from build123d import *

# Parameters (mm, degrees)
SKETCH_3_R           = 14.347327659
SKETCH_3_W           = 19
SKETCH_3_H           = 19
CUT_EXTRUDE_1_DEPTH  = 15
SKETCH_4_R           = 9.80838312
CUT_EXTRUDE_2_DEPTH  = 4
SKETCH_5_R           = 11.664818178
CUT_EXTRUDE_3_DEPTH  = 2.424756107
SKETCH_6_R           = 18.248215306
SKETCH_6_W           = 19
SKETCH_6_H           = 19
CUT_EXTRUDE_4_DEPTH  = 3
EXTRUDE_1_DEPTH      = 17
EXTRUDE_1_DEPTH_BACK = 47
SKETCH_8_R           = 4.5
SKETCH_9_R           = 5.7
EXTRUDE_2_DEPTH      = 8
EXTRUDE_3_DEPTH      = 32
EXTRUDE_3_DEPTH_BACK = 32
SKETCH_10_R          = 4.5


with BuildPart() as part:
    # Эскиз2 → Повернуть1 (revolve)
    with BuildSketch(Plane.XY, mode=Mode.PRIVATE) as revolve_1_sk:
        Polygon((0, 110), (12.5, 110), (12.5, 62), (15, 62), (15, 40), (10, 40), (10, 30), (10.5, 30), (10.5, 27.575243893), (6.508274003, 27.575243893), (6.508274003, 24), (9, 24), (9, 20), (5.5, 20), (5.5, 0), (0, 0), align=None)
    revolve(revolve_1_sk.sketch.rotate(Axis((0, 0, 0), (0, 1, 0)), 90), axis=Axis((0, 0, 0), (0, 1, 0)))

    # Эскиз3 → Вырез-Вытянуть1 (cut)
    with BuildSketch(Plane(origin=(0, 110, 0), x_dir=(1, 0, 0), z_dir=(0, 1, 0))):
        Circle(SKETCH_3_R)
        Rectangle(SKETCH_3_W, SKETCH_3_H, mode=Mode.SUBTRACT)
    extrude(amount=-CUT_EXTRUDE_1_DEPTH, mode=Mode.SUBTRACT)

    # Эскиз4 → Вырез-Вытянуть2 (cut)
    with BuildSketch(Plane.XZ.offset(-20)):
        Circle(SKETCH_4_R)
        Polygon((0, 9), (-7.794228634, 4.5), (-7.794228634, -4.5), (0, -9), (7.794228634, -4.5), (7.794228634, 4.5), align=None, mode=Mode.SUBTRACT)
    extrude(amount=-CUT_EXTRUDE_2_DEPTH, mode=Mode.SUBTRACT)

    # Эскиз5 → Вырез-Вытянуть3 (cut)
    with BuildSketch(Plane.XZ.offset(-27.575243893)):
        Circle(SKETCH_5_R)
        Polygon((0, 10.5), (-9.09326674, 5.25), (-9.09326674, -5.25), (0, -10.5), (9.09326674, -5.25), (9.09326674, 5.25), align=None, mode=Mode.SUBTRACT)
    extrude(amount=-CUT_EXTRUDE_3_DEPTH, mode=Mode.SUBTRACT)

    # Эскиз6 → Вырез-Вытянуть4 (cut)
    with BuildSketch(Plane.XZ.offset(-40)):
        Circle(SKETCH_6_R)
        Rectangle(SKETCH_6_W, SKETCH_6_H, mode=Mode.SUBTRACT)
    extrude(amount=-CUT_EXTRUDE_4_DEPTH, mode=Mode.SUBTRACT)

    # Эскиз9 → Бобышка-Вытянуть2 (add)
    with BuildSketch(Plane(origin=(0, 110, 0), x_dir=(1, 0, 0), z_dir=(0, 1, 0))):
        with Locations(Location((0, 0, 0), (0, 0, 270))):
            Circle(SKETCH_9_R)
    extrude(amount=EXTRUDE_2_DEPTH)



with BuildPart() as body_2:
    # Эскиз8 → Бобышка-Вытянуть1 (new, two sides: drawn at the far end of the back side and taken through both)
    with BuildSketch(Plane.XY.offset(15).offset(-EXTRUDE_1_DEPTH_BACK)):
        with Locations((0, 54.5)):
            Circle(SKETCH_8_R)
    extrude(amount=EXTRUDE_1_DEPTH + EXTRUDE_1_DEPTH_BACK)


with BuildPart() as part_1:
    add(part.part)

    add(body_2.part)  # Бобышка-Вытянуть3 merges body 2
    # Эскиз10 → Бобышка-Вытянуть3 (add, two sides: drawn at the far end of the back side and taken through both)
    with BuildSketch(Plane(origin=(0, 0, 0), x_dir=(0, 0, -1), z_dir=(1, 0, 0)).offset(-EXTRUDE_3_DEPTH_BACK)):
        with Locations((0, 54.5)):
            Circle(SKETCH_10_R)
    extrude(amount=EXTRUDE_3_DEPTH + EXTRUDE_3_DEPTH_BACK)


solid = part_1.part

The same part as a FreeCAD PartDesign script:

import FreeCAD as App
import Part
import Sketcher

V = App.Vector
Q = App.Units.Quantity

doc = App.newDocument("Part")
params = doc.addObject("Spreadsheet::Sheet", "Params")
for row, (alias, value) in enumerate([
    ("sketch1_width", "5 mm"),
    ("sketch1_height", "110 mm"),
    ("sketch1_height2", "20 mm"),
    ("sketch1_height3", "4 mm"),
    ("sketch1_height4", "10 mm"),
    ("revolution_angle", "360 deg"),
    ("sketch2_width", "19 mm"),
    ("pocket1_length", "15 mm"),
    ("sketch3_height", "9 mm"),
    ("sketch3_length", "9 mm"),
    ("pocket2_length", "4 mm"),
    ("sketch4_height", "10.5 mm"),
    ("pocket3_length", "2.424756 mm"),
    ("sketch5_width", "19 mm"),
    ("pocket4_length", "3 mm"),
    ("sketch6_diameter", "11.4 mm"),
    ("pad1_length", "8 mm"),
    ("sketch7_diameter", "9 mm"),
    ("pad2_length", "17 mm"),
    ("pad2_length2", "47 mm"),
    ("sketch8_diameter", "9 mm"),
    ("pad3_length", "32 mm"),
    ("pad3_length2", "32 mm"),
], start=1):
    params.set(f"A{row}", alias)
    params.set(f"B{row}", "=" + value)
    params.setAlias(f"B{row}", alias)

body = doc.addObject("PartDesign::Body", "Body")

sketch1 = doc.addObject("Sketcher::SketchObject", "Sketch")
body.addObject(sketch1)
sketch1.AttachmentSupport = (doc.XY_Plane, [""])
sketch1.MapMode = "FlatFace"
sketch1.addGeometry([
    Part.LineSegment(V(12.5, 110, 0), V(0, 110, 0)),
    Part.LineSegment(V(0, 110, 0), V(0, 0, 0)),
    Part.LineSegment(V(0, 0, 0), V(5.5, 0, 0)),
    Part.LineSegment(V(5.5, 0, 0), V(5.5, 20, 0)),
    Part.LineSegment(V(5.5, 20, 0), V(9, 20, 0)),
    Part.LineSegment(V(9, 20, 0), V(9, 24, 0)),
    Part.LineSegment(V(9, 24, 0), V(6.508274, 24, 0)),
    Part.LineSegment(V(6.508274, 24, 0), V(6.508274, 27.575244, 0)),
    Part.LineSegment(V(6.508274, 27.575244, 0), V(10.5, 27.575244, 0)),
    Part.LineSegment(V(10.5, 27.575244, 0), V(10.5, 30, 0)),
    Part.LineSegment(V(10.5, 30, 0), V(10, 30, 0)),
    Part.LineSegment(V(10, 30, 0), V(10, 40, 0)),
    Part.LineSegment(V(10, 40, 0), V(15, 40, 0)),
    Part.LineSegment(V(15, 40, 0), V(15, 62, 0)),
    Part.LineSegment(V(15, 62, 0), V(12.5, 62, 0)),
    Part.LineSegment(V(12.5, 62, 0), V(12.5, 110, 0)),
], False)
sketch1.addConstraint([
    Sketcher.Constraint("Coincident", 0, 2, 1, 1),
    Sketcher.Constraint("Coincident", 1, 2, 2, 1),
    Sketcher.Constraint("Coincident", 2, 2, 3, 1),
    Sketcher.Constraint("Coincident", 3, 2, 4, 1),
    Sketcher.Constraint("Coincident", 4, 2, 5, 1),
    Sketcher.Constraint("Coincident", 5, 2, 6, 1),
    Sketcher.Constraint("Coincident", 6, 2, 7, 1),
    Sketcher.Constraint("Coincident", 7, 2, 8, 1),
    Sketcher.Constraint("Coincident", 8, 2, 9, 1),
    Sketcher.Constraint("Coincident", 9, 2, 10, 1),
    Sketcher.Constraint("Coincident", 10, 2, 11, 1),
    Sketcher.Constraint("Coincident", 11, 2, 12, 1),
    Sketcher.Constraint("Coincident", 12, 2, 13, 1),
    Sketcher.Constraint("Coincident", 13, 2, 14, 1),
    Sketcher.Constraint("Coincident", 14, 2, 15, 1),
    Sketcher.Constraint("Coincident", 15, 2, 0, 1),
    Sketcher.Constraint("Horizontal", 0),
    Sketcher.Constraint("Vertical", 1),
    Sketcher.Constraint("Horizontal", 2),
    Sketcher.Constraint("Vertical", 3),
    Sketcher.Constraint("Horizontal", 4),
    Sketcher.Constraint("Vertical", 5),
    Sketcher.Constraint("Horizontal", 6),
    Sketcher.Constraint("Vertical", 7),
    Sketcher.Constraint("Horizontal", 8),
    Sketcher.Constraint("Vertical", 9),
    Sketcher.Constraint("Horizontal", 10),
    Sketcher.Constraint("Vertical", 11),
    Sketcher.Constraint("Horizontal", 12),
    Sketcher.Constraint("Vertical", 13),
    Sketcher.Constraint("Horizontal", 14),
    Sketcher.Constraint("Vertical", 15),
    Sketcher.Constraint("Coincident", 1, 2, -1, 1),
    Sketcher.Constraint("DistanceX", 12, 1, 12, 2, Q("5 mm")),
    Sketcher.Constraint("DistanceY", 1, 2, 1, 1, Q("110 mm")),
    Sketcher.Constraint("DistanceY", 3, 1, 3, 2, Q("20 mm")),
    Sketcher.Constraint("DistanceY", 5, 1, 5, 2, Q("4 mm")),
    Sketcher.Constraint("DistanceY", 11, 1, 11, 2, Q("10 mm")),
    Sketcher.Constraint("DistanceY", 13, 1, 13, 2, Q("22 mm")),
    Sketcher.Constraint("DistanceY", 15, 1, 15, 2, Q("48 mm")),
    Sketcher.Constraint("DistanceX", 0, 2, 0, 1, Q("12.5 mm")),
    Sketcher.Constraint("DistanceX", 2, 1, 2, 2, Q("5.5 mm")),
    Sketcher.Constraint("DistanceX", 4, 1, 4, 2, Q("3.5 mm")),
    Sketcher.Constraint("DistanceX", 10, 2, 10, 1, Q("0.5 mm")),
    Sketcher.Constraint("DistanceX", 14, 2, 14, 1, Q("2.5 mm")),
    Sketcher.Constraint("DistanceX", 6, 2, 6, 1, Q("2.491726 mm")),
    Sketcher.Constraint("DistanceY", 7, 1, 7, 2, Q("3.575244 mm")),
])
sketch1.setExpression("Constraints[33]", "Params.sketch1_width")
sketch1.setExpression("Constraints[34]", "Params.sketch1_height")
sketch1.setExpression("Constraints[35]", "Params.sketch1_height2")
sketch1.setExpression("Constraints[36]", "Params.sketch1_height3")
sketch1.setExpression("Constraints[37]", "Params.sketch1_height4")
revolution = doc.addObject("PartDesign::Revolution", "Revolution")
body.addObject(revolution)
revolution.Profile = sketch1
revolution.ReferenceAxis = (sketch1, ["V_Axis"])
revolution.setExpression("Angle", "Params.revolution_angle")

sketch2 = doc.addObject("Sketcher::SketchObject", "Sketch001")
body.addObject(sketch2)
sketch2.AttachmentSupport = (doc.XZ_Plane, [""])
sketch2.MapMode = "FlatFace"
sketch2.AttachmentOffset = App.Placement(V(0, 0, -110), App.Rotation())
sketch2.addGeometry([
    Part.Circle(V(0, 0, 0), V(0, 0, 1), 14.347328),
    Part.LineSegment(V(9.5, 9.5, 0), V(-9.5, 9.5, 0)),
    Part.LineSegment(V(-9.5, 9.5, 0), V(-9.5, -9.5, 0)),
    Part.LineSegment(V(-9.5, -9.5, 0), V(9.5, -9.5, 0)),
    Part.LineSegment(V(9.5, -9.5, 0), V(9.5, 9.5, 0)),
], False)
sketch2.addConstraint([
    Sketcher.Constraint("Coincident", 1, 2, 2, 1),
    Sketcher.Constraint("Coincident", 2, 2, 3, 1),
    Sketcher.Constraint("Coincident", 3, 2, 4, 1),
    Sketcher.Constraint("Coincident", 4, 2, 1, 1),
    Sketcher.Constraint("Horizontal", 1),
    Sketcher.Constraint("Vertical", 2),
    Sketcher.Constraint("Horizontal", 3),
    Sketcher.Constraint("Vertical", 4),
    Sketcher.Constraint("Coincident", 0, 3, -1, 1),
    Sketcher.Constraint("Symmetric", 1, 2, 3, 2, -1, 1),
    Sketcher.Constraint("Equal", 3, 2),
    Sketcher.Constraint("DistanceX", 1, 2, 1, 1, Q("19 mm")),
    Sketcher.Constraint("Diameter", 0, Q("28.694655 mm")),
])
sketch2.setExpression("Constraints[11]", "Params.sketch2_width")
pocket1 = doc.addObject("PartDesign::Pocket", "Pocket")
body.addObject(pocket1)
pocket1.Profile = sketch2
pocket1.setExpression("Length", "Params.pocket1_length")
pocket1.Reversed = True

sketch3 = doc.addObject("Sketcher::SketchObject", "Sketch002")
body.addObject(sketch3)
sketch3.AttachmentSupport = (doc.XZ_Plane, [""])
sketch3.MapMode = "FlatFace"
sketch3.AttachmentOffset = App.Placement(V(0, 0, -20), App.Rotation())
sketch3.addGeometry([
    Part.Circle(V(0, 0, 0), V(0, 0, 1), 9.808383),
    Part.LineSegment(V(-7.794229, 4.5, 0), V(0, 9, 0)),
    Part.LineSegment(V(0, 9, 0), V(7.794229, 4.5, 0)),
    Part.LineSegment(V(7.794229, 4.5, 0), V(7.794229, -4.5, 0)),
    Part.LineSegment(V(7.794229, -4.5, 0), V(0, -9, 0)),
    Part.LineSegment(V(0, -9, 0), V(-7.794229, -4.5, 0)),
    Part.LineSegment(V(-7.794229, -4.5, 0), V(-7.794229, 4.5, 0)),
], False)
sketch3.addConstraint([
    Sketcher.Constraint("Coincident", 1, 2, 2, 1),
    Sketcher.Constraint("Coincident", 2, 2, 3, 1),
    Sketcher.Constraint("Coincident", 3, 2, 4, 1),
    Sketcher.Constraint("Coincident", 4, 2, 5, 1),
    Sketcher.Constraint("Coincident", 5, 2, 6, 1),
    Sketcher.Constraint("Coincident", 6, 2, 1, 1),
    Sketcher.Constraint("Vertical", 3),
    Sketcher.Constraint("Vertical", 6),
    Sketcher.Constraint("Coincident", 0, 3, -1, 1),
    Sketcher.Constraint("Symmetric", 1, 2, 4, 2, -1, 1),
    Sketcher.Constraint("Symmetric", 2, 2, 5, 2, -1, 1),
    Sketcher.Constraint("PointOnObject", 1, 2, -2),
    Sketcher.Constraint("Parallel", 1, 4),
    Sketcher.Constraint("Horizontal", 3, 2, 5, 2),
    Sketcher.Constraint("DistanceY", 3, 2, 3, 1, Q("9 mm")),
    Sketcher.Constraint("Angle", 1, Q("30 deg")),
    Sketcher.Constraint("Distance", 1, Q("9 mm")),
    Sketcher.Constraint("Diameter", 0, Q("19.616766 mm")),
])
sketch3.setExpression("Constraints[14]", "Params.sketch3_height")
sketch3.setExpression("Constraints[16]", "Params.sketch3_length")
pocket2 = doc.addObject("PartDesign::Pocket", "Pocket001")
body.addObject(pocket2)
pocket2.Profile = sketch3
pocket2.setExpression("Length", "Params.pocket2_length")

sketch4 = doc.addObject("Sketcher::SketchObject", "Sketch003")
body.addObject(sketch4)
sketch4.AttachmentSupport = (doc.XZ_Plane, [""])
sketch4.MapMode = "FlatFace"
sketch4.AttachmentOffset = App.Placement(V(0, 0, -27.575244), App.Rotation())
sketch4.addGeometry([
    Part.Circle(V(0, 0, 0), V(0, 0, 1), 11.664818),
    Part.LineSegment(V(-9.093267, 5.25, 0), V(0, 10.5, 0)),
    Part.LineSegment(V(0, 10.5, 0), V(9.093267, 5.25, 0)),
    Part.LineSegment(V(9.093267, 5.25, 0), V(9.093267, -5.25, 0)),
    Part.LineSegment(V(9.093267, -5.25, 0), V(0, -10.5, 0)),
    Part.LineSegment(V(0, -10.5, 0), V(-9.093267, -5.25, 0)),
    Part.LineSegment(V(-9.093267, -5.25, 0), V(-9.093267, 5.25, 0)),
], False)
sketch4.addConstraint([
    Sketcher.Constraint("Coincident", 1, 2, 2, 1),
    Sketcher.Constraint("Coincident", 2, 2, 3, 1),
    Sketcher.Constraint("Coincident", 3, 2, 4, 1),
    Sketcher.Constraint("Coincident", 4, 2, 5, 1),
    Sketcher.Constraint("Coincident", 5, 2, 6, 1),
    Sketcher.Constraint("Coincident", 6, 2, 1, 1),
    Sketcher.Constraint("Vertical", 3),
    Sketcher.Constraint("Vertical", 6),
    Sketcher.Constraint("Coincident", 0, 3, -1, 1),
    Sketcher.Constraint("Symmetric", 1, 2, 4, 2, -1, 1),
    Sketcher.Constraint("Symmetric", 2, 2, 5, 2, -1, 1),
    Sketcher.Constraint("PointOnObject", 1, 2, -2),
    Sketcher.Constraint("Parallel", 1, 4),
    Sketcher.Constraint("Horizontal", 3, 2, 5, 2),
    Sketcher.Constraint("Angle", 1, Q("30 deg")),
    Sketcher.Constraint("DistanceY", 3, 2, 3, 1, Q("10.5 mm")),
    Sketcher.Constraint("DistanceY", 4, 2, 1, 2, Q("21 mm")),
    Sketcher.Constraint("Diameter", 0, Q("23.329636 mm")),
])
sketch4.setExpression("Constraints[15]", "Params.sketch4_height")
pocket3 = doc.addObject("PartDesign::Pocket", "Pocket002")
body.addObject(pocket3)
pocket3.Profile = sketch4
pocket3.setExpression("Length", "Params.pocket3_length")

sketch5 = doc.addObject("Sketcher::SketchObject", "Sketch004")
body.addObject(sketch5)
sketch5.AttachmentSupport = (doc.XZ_Plane, [""])
sketch5.MapMode = "FlatFace"
sketch5.AttachmentOffset = App.Placement(V(0, 0, -40), App.Rotation())
sketch5.addGeometry([
    Part.Circle(V(0, 0, 0), V(0, 0, 1), 18.248215),
    Part.LineSegment(V(9.5, -9.5, 0), V(-9.5, -9.5, 0)),
    Part.LineSegment(V(-9.5, -9.5, 0), V(-9.5, 9.5, 0)),
    Part.LineSegment(V(-9.5, 9.5, 0), V(9.5, 9.5, 0)),
    Part.LineSegment(V(9.5, 9.5, 0), V(9.5, -9.5, 0)),
], False)
sketch5.addConstraint([
    Sketcher.Constraint("Coincident", 1, 2, 2, 1),
    Sketcher.Constraint("Coincident", 2, 2, 3, 1),
    Sketcher.Constraint("Coincident", 3, 2, 4, 1),
    Sketcher.Constraint("Coincident", 4, 2, 1, 1),
    Sketcher.Constraint("Horizontal", 1),
    Sketcher.Constraint("Vertical", 2),
    Sketcher.Constraint("Horizontal", 3),
    Sketcher.Constraint("Vertical", 4),
    Sketcher.Constraint("Coincident", 0, 3, -1, 1),
    Sketcher.Constraint("Symmetric", 1, 2, 3, 2, -1, 1),
    Sketcher.Constraint("Equal", 3, 2),
    Sketcher.Constraint("DistanceX", 1, 2, 1, 1, Q("19 mm")),
    Sketcher.Constraint("Diameter", 0, Q("36.496431 mm")),
])
sketch5.setExpression("Constraints[11]", "Params.sketch5_width")
pocket4 = doc.addObject("PartDesign::Pocket", "Pocket003")
body.addObject(pocket4)
pocket4.Profile = sketch5
pocket4.setExpression("Length", "Params.pocket4_length")

sketch6 = doc.addObject("Sketcher::SketchObject", "Sketch005")
body.addObject(sketch6)
sketch6.AttachmentSupport = (doc.XZ_Plane, [""])
sketch6.MapMode = "FlatFace"
sketch6.AttachmentOffset = App.Placement(V(0, 0, -110), App.Rotation())
sketch6.addGeometry(Part.Circle(V(0, 0, 0), V(0, 0, 1), 5.7), False)
sketch6.addConstraint([
    Sketcher.Constraint("Coincident", 0, 3, -1, 1),
    Sketcher.Constraint("Diameter", 0, Q("11.4 mm")),
])
sketch6.setExpression("Constraints[1]", "Params.sketch6_diameter")
pad1 = doc.addObject("PartDesign::Pad", "Pad")
body.addObject(pad1)
pad1.Profile = sketch6
pad1.setExpression("Length", "Params.pad1_length")
pad1.Reversed = True
body2 = doc.addObject("PartDesign::Body", "Body001")

sketch7 = doc.addObject("Sketcher::SketchObject", "Sketch006")
body2.addObject(sketch7)
sketch7.AttachmentSupport = (doc.getObject("XY_Plane001"), [""])
sketch7.MapMode = "FlatFace"
sketch7.AttachmentOffset = App.Placement(V(0, 0, 15), App.Rotation())
sketch7.addGeometry(Part.Circle(V(0, 54.5, 0), V(0, 0, 1), 4.5), False)
sketch7.addConstraint([
    Sketcher.Constraint("PointOnObject", 0, 3, -2),
    Sketcher.Constraint("Diameter", 0, Q("9 mm")),
    Sketcher.Constraint("DistanceY", -1, 1, 0, 3, Q("54.5 mm")),
])
sketch7.setExpression("Constraints[1]", "Params.sketch7_diameter")
pad2 = doc.addObject("PartDesign::Pad", "Pad001")
body2.addObject(pad2)
pad2.Profile = sketch7
pad2.Type = "TwoLengths"
pad2.setExpression("Length", "Params.pad2_length")
pad2.setExpression("Length2", "Params.pad2_length2")
doc.recompute()

boolean = doc.addObject("PartDesign::Boolean", "Boolean")
body.addObject(boolean)
boolean.Type = "Fuse"
boolean.addObjects([body2])

sketch8 = doc.addObject("Sketcher::SketchObject", "Sketch007")
body.addObject(sketch8)
sketch8.AttachmentSupport = (doc.YZ_Plane, [""])
sketch8.MapMode = "FlatFace"
sketch8.addGeometry(Part.Circle(V(54.5, 0, 0), V(0, 0, 1), 4.5), False)
sketch8.addConstraint([
    Sketcher.Constraint("PointOnObject", 0, 3, -1),
    Sketcher.Constraint("Diameter", 0, Q("9 mm")),
    Sketcher.Constraint("DistanceX", -1, 1, 0, 3, Q("54.5 mm")),
])
sketch8.setExpression("Constraints[1]", "Params.sketch8_diameter")
pad3 = doc.addObject("PartDesign::Pad", "Pad002")
body.addObject(pad3)
pad3.Profile = sketch8
pad3.Type = "TwoLengths"
pad3.setExpression("Length", "Params.pad3_length")
pad3.setExpression("Length2", "Params.pad3_length2")

doc.recompute()
